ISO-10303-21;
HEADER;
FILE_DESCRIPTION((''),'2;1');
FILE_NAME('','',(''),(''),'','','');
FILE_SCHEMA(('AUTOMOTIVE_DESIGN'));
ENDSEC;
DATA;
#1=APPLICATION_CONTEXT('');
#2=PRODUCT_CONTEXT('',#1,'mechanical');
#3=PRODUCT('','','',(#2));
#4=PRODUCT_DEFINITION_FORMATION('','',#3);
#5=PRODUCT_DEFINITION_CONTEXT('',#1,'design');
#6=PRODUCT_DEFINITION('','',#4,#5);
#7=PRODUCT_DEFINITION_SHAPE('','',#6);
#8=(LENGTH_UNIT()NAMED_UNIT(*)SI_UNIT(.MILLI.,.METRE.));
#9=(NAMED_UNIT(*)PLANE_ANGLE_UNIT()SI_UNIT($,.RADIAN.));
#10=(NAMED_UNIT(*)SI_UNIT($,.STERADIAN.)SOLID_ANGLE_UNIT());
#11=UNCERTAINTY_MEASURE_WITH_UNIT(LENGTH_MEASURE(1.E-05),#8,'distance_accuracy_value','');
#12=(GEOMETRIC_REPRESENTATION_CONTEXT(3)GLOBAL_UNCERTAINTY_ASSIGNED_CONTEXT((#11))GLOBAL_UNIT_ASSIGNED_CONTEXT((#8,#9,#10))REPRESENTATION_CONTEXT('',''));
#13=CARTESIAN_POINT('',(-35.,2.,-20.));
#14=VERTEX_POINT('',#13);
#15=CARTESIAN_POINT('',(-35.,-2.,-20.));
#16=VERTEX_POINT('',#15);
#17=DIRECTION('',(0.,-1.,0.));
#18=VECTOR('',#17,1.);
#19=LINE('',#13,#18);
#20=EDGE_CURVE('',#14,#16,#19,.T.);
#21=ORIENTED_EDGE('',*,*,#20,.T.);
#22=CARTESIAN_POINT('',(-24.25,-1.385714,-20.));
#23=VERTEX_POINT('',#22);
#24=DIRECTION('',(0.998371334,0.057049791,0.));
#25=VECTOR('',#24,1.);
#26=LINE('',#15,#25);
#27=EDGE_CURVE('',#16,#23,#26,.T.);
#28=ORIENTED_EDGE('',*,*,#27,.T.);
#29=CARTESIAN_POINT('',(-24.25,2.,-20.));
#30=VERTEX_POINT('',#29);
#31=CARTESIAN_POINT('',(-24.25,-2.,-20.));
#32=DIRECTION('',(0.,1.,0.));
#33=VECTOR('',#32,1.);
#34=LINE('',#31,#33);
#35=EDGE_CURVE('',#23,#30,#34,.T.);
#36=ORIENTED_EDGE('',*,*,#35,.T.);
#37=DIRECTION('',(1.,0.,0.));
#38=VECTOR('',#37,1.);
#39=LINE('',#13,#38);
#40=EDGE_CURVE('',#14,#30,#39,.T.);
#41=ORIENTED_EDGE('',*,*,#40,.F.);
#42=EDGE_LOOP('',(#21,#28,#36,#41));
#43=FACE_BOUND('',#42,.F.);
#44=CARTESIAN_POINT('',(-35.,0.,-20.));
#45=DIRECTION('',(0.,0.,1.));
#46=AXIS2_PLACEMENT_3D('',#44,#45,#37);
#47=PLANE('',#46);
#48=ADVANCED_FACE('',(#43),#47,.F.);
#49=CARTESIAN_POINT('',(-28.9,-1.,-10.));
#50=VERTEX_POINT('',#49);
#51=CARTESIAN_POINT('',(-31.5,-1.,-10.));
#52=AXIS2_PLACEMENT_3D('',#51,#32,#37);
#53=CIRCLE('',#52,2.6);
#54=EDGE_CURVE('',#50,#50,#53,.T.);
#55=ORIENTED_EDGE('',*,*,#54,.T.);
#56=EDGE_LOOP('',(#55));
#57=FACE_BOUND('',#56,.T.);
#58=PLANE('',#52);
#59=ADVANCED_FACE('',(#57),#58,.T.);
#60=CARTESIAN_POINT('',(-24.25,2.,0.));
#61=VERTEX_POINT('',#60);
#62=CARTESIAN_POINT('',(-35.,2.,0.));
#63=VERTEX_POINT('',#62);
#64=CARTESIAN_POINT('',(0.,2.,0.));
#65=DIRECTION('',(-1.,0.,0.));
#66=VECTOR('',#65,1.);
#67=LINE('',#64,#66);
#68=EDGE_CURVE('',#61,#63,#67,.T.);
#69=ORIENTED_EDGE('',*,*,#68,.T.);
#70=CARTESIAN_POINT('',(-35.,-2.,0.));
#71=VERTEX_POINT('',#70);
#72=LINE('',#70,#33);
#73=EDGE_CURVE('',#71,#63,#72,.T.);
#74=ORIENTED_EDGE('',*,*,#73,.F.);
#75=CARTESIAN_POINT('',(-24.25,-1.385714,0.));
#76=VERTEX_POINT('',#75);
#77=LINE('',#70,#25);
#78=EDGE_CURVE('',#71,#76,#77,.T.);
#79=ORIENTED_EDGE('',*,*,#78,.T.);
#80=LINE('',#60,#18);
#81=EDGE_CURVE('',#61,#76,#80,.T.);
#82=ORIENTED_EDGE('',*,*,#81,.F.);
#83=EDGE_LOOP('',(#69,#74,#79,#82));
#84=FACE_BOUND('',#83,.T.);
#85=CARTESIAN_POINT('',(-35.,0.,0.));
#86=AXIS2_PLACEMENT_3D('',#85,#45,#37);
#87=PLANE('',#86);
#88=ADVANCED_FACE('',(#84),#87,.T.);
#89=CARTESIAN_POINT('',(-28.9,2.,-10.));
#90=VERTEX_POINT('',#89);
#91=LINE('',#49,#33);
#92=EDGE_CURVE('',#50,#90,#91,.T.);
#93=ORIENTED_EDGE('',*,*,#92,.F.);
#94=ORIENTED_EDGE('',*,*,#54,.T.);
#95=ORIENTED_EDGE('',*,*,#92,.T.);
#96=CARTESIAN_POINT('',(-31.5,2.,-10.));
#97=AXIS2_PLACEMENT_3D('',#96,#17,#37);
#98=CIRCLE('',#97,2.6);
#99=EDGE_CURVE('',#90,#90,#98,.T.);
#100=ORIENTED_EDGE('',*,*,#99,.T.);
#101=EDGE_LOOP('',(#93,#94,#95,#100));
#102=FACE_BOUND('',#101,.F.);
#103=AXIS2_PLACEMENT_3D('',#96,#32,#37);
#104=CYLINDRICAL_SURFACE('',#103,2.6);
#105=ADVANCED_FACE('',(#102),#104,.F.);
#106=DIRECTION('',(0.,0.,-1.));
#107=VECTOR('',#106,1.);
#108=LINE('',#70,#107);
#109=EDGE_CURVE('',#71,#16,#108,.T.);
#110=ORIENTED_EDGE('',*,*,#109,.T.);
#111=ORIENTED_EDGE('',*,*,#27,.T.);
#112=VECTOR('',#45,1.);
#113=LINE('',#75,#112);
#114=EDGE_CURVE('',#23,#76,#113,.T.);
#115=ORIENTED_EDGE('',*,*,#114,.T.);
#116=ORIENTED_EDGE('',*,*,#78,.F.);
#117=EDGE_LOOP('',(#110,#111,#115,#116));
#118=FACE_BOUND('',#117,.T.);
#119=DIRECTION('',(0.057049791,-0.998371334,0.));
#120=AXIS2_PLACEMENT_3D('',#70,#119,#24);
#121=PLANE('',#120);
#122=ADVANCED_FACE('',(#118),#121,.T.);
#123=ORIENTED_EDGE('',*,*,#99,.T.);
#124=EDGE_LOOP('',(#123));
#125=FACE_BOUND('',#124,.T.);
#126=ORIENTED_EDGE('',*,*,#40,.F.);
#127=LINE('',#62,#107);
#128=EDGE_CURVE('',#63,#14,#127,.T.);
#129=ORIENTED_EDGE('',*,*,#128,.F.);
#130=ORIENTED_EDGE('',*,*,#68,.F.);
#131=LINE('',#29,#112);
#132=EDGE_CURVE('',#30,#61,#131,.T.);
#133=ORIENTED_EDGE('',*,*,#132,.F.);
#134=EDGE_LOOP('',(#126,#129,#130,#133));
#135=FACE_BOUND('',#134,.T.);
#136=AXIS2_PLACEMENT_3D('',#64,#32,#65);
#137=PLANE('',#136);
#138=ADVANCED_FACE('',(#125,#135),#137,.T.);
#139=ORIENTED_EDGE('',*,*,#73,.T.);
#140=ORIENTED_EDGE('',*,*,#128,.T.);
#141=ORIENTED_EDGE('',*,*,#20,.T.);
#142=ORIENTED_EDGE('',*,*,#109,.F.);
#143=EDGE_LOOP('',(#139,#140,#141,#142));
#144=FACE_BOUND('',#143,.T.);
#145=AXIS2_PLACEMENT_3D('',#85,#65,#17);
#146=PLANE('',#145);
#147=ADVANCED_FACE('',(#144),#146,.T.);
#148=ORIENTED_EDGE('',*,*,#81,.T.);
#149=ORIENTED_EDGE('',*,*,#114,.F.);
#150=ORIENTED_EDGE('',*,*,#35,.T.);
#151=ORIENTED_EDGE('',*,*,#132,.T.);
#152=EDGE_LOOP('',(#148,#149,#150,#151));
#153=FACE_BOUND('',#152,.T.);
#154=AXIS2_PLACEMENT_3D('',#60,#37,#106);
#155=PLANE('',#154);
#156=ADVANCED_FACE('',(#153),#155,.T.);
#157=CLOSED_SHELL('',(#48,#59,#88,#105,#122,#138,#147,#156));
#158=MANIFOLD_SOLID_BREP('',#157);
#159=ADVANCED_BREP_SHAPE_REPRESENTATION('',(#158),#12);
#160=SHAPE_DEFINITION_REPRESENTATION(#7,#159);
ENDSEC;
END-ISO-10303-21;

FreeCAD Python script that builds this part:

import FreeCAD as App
import Part
import Sketcher
Q = App.Units.Quantity


def add_polygon(sketch, points):
    """Adds a closed chain of lines whose ends are joined by coincident constraints."""
    first, n = sketch.GeometryCount, len(points)
    for a, b in zip(points, points[1:] + points[:1]):
        sketch.addGeometry(Part.LineSegment(App.Vector(*a, 0), App.Vector(*b, 0)), False)
    for i in range(n):
        sketch.addConstraint(Sketcher.Constraint("Coincident", first + i, 2, first + (i + 1) % n, 1))

doc = App.newDocument("Part")
params = doc.addObject("Spreadsheet::Sheet", "Params")
for row, (alias, value) in enumerate([
    ("sketch1_width", "35 mm"),
    ("sketch1_height", "20 mm"),
    ("pad1_length", "2 mm"),
    ("sketch2_diameter", "5.2 mm"),
    ("pocket1_length", "2 mm"),
    ("sketch3_height", "2 mm"),
    ("sketch3_width", "35 mm"),
    ("pad2_length", "20 mm"),
    ("sketch4_height", "20 mm"),
    ("pocket2_length", "23.75 mm"),
    ("sketch5_height", "20 mm"),
    ("sketch5_width", "23.75 mm"),
    ("sketch6_height", "20 mm"),
    ("pocket4_length", "0.5 mm"),
    ("sketch7_diameter", "5.2 mm"),
    ("pocket5_length", "1 mm"),
], start=1):
    params.set(f"A{row}", alias)
    params.set(f"B{row}", "=" + value)
    params.setAlias(f"B{row}", alias)

body = doc.addObject("PartDesign::Body", "Body")

# Sketch on XZ plane
sketch1 = body.newObject("Sketcher::SketchObject", "Sketch")
sketch1.AttachmentSupport = (doc.getObject("XZ_Plane"), [""])
sketch1.MapMode = "FlatFace"
add_polygon(sketch1, [(-35, 0), (0, 0), (0, -20), (-35, -20)])  # lines 0-3
sketch1.addConstraint(Sketcher.Constraint("Horizontal", 0))
sketch1.addConstraint(Sketcher.Constraint("Vertical", 1))
sketch1.addConstraint(Sketcher.Constraint("Horizontal", 2))
sketch1.addConstraint(Sketcher.Constraint("Vertical", 3))
sketch1.addConstraint(Sketcher.Constraint("Coincident", 0, 2, -1, 1))
sketch1.addConstraint(Sketcher.Constraint("DistanceX", 0, 1, 0, 2, Q("35 mm")))
sketch1.addConstraint(Sketcher.Constraint("DistanceY", 1, 2, 1, 1, Q("20 mm")))
sketch1.setExpression("Constraints[9]", "Params.sketch1_width")
sketch1.setExpression("Constraints[10]", "Params.sketch1_height")
pad1 = body.newObject("PartDesign::Pad", "Pad")
pad1.Profile = sketch1
pad1.setExpression("Length", "Params.pad1_length")
pad1.Reversed = True

# Sketch on XZ plane
sketch2 = body.newObject("Sketcher::SketchObject", "Sketch001")
sketch2.AttachmentSupport = (doc.getObject("XZ_Plane"), [""])
sketch2.MapMode = "FlatFace"
sketch2.AttachmentOffset = App.Placement(App.Vector(0, 0, -2), App.Rotation())
sketch2.addGeometry(Part.Circle(App.Vector(-31.5, -10, 0), App.Vector(0, 0, 1), 2.6), False)
sketch2.addConstraint(Sketcher.Constraint("Diameter", 0, Q("5.2 mm")))
sketch2.addConstraint(Sketcher.Constraint("DistanceY", 0, 3, -1, 1, Q("10 mm")))
sketch2.addConstraint(Sketcher.Constraint("DistanceX", 0, 3, -1, 1, Q("31.5 mm")))
sketch2.setExpression("Constraints[0]", "Params.sketch2_diameter")
pocket1 = body.newObject("PartDesign::Pocket", "Pocket")
pocket1.Profile = sketch2
pocket1.setExpression("Length", "Params.pocket1_length")
pocket1.Reversed = True

# Sketch on XY plane
sketch3 = body.newObject("Sketcher::SketchObject", "Sketch002")
sketch3.AttachmentSupport = (doc.getObject("XY_Plane"), [""])
sketch3.MapMode = "FlatFace"
add_polygon(sketch3, [(-35, -2), (0, 0), (-35, 0)])  # lines 0-2
sketch3.addConstraint(Sketcher.Constraint("Horizontal", 1))
sketch3.addConstraint(Sketcher.Constraint("Vertical", 2))
sketch3.addConstraint(Sketcher.Constraint("Coincident", 0, 2, -1, 1))
sketch3.addConstraint(Sketcher.Constraint("DistanceY", 2, 2, 2, 1, Q("2 mm")))
sketch3.addConstraint(Sketcher.Constraint("DistanceX", 1, 2, 1, 1, Q("35 mm")))
sketch3.setExpression("Constraints[6]", "Params.sketch3_height")
sketch3.setExpression("Constraints[7]", "Params.sketch3_width")
pad2 = body.newObject("PartDesign::Pad", "Pad001")
pad2.Profile = sketch3
pad2.setExpression("Length", "Params.pad2_length")
pad2.Reversed = True

# Sketch on YZ plane
sketch4 = body.newObject("Sketcher::SketchObject", "Sketch003")
sketch4.AttachmentSupport = (doc.getObject("YZ_Plane"), [""])
sketch4.MapMode = "FlatFace"
add_polygon(sketch4, [(9, 0), (0, 0), (0, -20), (9, -20)])  # lines 0-3
sketch4.addConstraint(Sketcher.Constraint("Horizontal", 0))
sketch4.addConstraint(Sketcher.Constraint("Vertical", 1))
sketch4.addConstraint(Sketcher.Constraint("Horizontal", 2))
sketch4.addConstraint(Sketcher.Constraint("Vertical", 3))
sketch4.addConstraint(Sketcher.Constraint("Coincident", 0, 2, -1, 1))
sketch4.addConstraint(Sketcher.Constraint("DistanceY", 1, 2, 1, 1, Q("20 mm")))
sketch4.addConstraint(Sketcher.Constraint("DistanceX", 0, 2, 0, 1, Q("8.577 mm")))
sketch4.setExpression("Constraints[9]", "Params.sketch4_height")
pocket2 = body.newObject("PartDesign::Pocket", "Pocket001")
pocket2.Profile = sketch4
pocket2.setExpression("Length", "Params.pocket2_length")

# Sketch on XZ plane
sketch5 = body.newObject("Sketcher::SketchObject", "Sketch004")
sketch5.AttachmentSupport = (doc.getObject("XZ_Plane"), [""])
sketch5.MapMode = "FlatFace"
add_polygon(sketch5, [(0, -20), (-24, -20), (-24, 0), (0, 0)])  # lines 0-3
sketch5.addConstraint(Sketcher.Constraint("Horizontal", 0))
sketch5.addConstraint(Sketcher.Constraint("Vertical", 1))
sketch5.addConstraint(Sketcher.Constraint("Horizontal", 2))
sketch5.addConstraint(Sketcher.Constraint("Vertical", 3))
sketch5.addConstraint(Sketcher.Constraint("Coincident", 2, 2, -1, 1))
sketch5.addConstraint(Sketcher.Constraint("DistanceY", 1, 1, 1, 2, Q("20 mm")))
sketch5.addConstraint(Sketcher.Constraint("DistanceX", 0, 2, 0, 1, Q("23.75 mm")))
sketch5.setExpression("Constraints[9]", "Params.sketch5_height")
sketch5.setExpression("Constraints[10]", "Params.sketch5_width")
pocket3 = body.newObject("PartDesign::Pocket", "Pocket002")
pocket3.Profile = sketch5
pocket3.Type = "ThroughAll"
pocket3.Reversed = True

# Sketch on YZ plane
sketch6 = body.newObject("Sketcher::SketchObject", "Sketch005")
sketch6.AttachmentSupport = (doc.getObject("YZ_Plane"), [""])
sketch6.MapMode = "FlatFace"
sketch6.AttachmentOffset = App.Placement(App.Vector(0, 0, -23.75), App.Rotation())
add_polygon(sketch6, [(-6, -20), (2, -20), (2, 0), (-6, 0)])  # lines 0-3
sketch6.addConstraint(Sketcher.Constraint("Horizontal", 0))
sketch6.addConstraint(Sketcher.Constraint("Vertical", 1))
sketch6.addConstraint(Sketcher.Constraint("Horizontal", 2))
sketch6.addConstraint(Sketcher.Constraint("Vertical", 3))
sketch6.addConstraint(Sketcher.Constraint("PointOnObject", 1, 2, -1))
sketch6.addConstraint(Sketcher.Constraint("DistanceY", 1, 1, 1, 2, Q("20 mm")))
sketch6.addConstraint(Sketcher.Constraint("DistanceX", -1, 1, 0, 2, Q("2 mm")))
sketch6.addConstraint(Sketcher.Constraint("DistanceX", 0, 1, 0, 2, Q("8.1158 mm")))
sketch6.setExpression("Constraints[9]", "Params.sketch6_height")
pocket4 = body.newObject("PartDesign::Pocket", "Pocket003")
pocket4.Profile = sketch6
pocket4.setExpression("Length", "Params.pocket4_length")

# Sketch on XZ plane
sketch7 = body.newObject("Sketcher::SketchObject", "Sketch006")
sketch7.AttachmentSupport = (doc.getObject("XZ_Plane"), [""])
sketch7.MapMode = "FlatFace"
sketch7.addGeometry(Part.Circle(App.Vector(-31.5, -10, 0), App.Vector(0, 0, 1), 2.6), False)
sketch7.addConstraint(Sketcher.Constraint("Diameter", 0, Q("5.2 mm")))
sketch7.addConstraint(Sketcher.Constraint("DistanceY", 0, 3, -1, 1, Q("10 mm")))
sketch7.addConstraint(Sketcher.Constraint("DistanceX", 0, 3, -1, 1, Q("31.5 mm")))
sketch7.setExpression("Constraints[0]", "Params.sketch7_diameter")
pocket5 = body.newObject("PartDesign::Pocket", "Pocket004")
pocket5.Profile = sketch7
pocket5.setExpression("Length", "Params.pocket5_length")
pocket5.Reversed = True

doc.recompute()
